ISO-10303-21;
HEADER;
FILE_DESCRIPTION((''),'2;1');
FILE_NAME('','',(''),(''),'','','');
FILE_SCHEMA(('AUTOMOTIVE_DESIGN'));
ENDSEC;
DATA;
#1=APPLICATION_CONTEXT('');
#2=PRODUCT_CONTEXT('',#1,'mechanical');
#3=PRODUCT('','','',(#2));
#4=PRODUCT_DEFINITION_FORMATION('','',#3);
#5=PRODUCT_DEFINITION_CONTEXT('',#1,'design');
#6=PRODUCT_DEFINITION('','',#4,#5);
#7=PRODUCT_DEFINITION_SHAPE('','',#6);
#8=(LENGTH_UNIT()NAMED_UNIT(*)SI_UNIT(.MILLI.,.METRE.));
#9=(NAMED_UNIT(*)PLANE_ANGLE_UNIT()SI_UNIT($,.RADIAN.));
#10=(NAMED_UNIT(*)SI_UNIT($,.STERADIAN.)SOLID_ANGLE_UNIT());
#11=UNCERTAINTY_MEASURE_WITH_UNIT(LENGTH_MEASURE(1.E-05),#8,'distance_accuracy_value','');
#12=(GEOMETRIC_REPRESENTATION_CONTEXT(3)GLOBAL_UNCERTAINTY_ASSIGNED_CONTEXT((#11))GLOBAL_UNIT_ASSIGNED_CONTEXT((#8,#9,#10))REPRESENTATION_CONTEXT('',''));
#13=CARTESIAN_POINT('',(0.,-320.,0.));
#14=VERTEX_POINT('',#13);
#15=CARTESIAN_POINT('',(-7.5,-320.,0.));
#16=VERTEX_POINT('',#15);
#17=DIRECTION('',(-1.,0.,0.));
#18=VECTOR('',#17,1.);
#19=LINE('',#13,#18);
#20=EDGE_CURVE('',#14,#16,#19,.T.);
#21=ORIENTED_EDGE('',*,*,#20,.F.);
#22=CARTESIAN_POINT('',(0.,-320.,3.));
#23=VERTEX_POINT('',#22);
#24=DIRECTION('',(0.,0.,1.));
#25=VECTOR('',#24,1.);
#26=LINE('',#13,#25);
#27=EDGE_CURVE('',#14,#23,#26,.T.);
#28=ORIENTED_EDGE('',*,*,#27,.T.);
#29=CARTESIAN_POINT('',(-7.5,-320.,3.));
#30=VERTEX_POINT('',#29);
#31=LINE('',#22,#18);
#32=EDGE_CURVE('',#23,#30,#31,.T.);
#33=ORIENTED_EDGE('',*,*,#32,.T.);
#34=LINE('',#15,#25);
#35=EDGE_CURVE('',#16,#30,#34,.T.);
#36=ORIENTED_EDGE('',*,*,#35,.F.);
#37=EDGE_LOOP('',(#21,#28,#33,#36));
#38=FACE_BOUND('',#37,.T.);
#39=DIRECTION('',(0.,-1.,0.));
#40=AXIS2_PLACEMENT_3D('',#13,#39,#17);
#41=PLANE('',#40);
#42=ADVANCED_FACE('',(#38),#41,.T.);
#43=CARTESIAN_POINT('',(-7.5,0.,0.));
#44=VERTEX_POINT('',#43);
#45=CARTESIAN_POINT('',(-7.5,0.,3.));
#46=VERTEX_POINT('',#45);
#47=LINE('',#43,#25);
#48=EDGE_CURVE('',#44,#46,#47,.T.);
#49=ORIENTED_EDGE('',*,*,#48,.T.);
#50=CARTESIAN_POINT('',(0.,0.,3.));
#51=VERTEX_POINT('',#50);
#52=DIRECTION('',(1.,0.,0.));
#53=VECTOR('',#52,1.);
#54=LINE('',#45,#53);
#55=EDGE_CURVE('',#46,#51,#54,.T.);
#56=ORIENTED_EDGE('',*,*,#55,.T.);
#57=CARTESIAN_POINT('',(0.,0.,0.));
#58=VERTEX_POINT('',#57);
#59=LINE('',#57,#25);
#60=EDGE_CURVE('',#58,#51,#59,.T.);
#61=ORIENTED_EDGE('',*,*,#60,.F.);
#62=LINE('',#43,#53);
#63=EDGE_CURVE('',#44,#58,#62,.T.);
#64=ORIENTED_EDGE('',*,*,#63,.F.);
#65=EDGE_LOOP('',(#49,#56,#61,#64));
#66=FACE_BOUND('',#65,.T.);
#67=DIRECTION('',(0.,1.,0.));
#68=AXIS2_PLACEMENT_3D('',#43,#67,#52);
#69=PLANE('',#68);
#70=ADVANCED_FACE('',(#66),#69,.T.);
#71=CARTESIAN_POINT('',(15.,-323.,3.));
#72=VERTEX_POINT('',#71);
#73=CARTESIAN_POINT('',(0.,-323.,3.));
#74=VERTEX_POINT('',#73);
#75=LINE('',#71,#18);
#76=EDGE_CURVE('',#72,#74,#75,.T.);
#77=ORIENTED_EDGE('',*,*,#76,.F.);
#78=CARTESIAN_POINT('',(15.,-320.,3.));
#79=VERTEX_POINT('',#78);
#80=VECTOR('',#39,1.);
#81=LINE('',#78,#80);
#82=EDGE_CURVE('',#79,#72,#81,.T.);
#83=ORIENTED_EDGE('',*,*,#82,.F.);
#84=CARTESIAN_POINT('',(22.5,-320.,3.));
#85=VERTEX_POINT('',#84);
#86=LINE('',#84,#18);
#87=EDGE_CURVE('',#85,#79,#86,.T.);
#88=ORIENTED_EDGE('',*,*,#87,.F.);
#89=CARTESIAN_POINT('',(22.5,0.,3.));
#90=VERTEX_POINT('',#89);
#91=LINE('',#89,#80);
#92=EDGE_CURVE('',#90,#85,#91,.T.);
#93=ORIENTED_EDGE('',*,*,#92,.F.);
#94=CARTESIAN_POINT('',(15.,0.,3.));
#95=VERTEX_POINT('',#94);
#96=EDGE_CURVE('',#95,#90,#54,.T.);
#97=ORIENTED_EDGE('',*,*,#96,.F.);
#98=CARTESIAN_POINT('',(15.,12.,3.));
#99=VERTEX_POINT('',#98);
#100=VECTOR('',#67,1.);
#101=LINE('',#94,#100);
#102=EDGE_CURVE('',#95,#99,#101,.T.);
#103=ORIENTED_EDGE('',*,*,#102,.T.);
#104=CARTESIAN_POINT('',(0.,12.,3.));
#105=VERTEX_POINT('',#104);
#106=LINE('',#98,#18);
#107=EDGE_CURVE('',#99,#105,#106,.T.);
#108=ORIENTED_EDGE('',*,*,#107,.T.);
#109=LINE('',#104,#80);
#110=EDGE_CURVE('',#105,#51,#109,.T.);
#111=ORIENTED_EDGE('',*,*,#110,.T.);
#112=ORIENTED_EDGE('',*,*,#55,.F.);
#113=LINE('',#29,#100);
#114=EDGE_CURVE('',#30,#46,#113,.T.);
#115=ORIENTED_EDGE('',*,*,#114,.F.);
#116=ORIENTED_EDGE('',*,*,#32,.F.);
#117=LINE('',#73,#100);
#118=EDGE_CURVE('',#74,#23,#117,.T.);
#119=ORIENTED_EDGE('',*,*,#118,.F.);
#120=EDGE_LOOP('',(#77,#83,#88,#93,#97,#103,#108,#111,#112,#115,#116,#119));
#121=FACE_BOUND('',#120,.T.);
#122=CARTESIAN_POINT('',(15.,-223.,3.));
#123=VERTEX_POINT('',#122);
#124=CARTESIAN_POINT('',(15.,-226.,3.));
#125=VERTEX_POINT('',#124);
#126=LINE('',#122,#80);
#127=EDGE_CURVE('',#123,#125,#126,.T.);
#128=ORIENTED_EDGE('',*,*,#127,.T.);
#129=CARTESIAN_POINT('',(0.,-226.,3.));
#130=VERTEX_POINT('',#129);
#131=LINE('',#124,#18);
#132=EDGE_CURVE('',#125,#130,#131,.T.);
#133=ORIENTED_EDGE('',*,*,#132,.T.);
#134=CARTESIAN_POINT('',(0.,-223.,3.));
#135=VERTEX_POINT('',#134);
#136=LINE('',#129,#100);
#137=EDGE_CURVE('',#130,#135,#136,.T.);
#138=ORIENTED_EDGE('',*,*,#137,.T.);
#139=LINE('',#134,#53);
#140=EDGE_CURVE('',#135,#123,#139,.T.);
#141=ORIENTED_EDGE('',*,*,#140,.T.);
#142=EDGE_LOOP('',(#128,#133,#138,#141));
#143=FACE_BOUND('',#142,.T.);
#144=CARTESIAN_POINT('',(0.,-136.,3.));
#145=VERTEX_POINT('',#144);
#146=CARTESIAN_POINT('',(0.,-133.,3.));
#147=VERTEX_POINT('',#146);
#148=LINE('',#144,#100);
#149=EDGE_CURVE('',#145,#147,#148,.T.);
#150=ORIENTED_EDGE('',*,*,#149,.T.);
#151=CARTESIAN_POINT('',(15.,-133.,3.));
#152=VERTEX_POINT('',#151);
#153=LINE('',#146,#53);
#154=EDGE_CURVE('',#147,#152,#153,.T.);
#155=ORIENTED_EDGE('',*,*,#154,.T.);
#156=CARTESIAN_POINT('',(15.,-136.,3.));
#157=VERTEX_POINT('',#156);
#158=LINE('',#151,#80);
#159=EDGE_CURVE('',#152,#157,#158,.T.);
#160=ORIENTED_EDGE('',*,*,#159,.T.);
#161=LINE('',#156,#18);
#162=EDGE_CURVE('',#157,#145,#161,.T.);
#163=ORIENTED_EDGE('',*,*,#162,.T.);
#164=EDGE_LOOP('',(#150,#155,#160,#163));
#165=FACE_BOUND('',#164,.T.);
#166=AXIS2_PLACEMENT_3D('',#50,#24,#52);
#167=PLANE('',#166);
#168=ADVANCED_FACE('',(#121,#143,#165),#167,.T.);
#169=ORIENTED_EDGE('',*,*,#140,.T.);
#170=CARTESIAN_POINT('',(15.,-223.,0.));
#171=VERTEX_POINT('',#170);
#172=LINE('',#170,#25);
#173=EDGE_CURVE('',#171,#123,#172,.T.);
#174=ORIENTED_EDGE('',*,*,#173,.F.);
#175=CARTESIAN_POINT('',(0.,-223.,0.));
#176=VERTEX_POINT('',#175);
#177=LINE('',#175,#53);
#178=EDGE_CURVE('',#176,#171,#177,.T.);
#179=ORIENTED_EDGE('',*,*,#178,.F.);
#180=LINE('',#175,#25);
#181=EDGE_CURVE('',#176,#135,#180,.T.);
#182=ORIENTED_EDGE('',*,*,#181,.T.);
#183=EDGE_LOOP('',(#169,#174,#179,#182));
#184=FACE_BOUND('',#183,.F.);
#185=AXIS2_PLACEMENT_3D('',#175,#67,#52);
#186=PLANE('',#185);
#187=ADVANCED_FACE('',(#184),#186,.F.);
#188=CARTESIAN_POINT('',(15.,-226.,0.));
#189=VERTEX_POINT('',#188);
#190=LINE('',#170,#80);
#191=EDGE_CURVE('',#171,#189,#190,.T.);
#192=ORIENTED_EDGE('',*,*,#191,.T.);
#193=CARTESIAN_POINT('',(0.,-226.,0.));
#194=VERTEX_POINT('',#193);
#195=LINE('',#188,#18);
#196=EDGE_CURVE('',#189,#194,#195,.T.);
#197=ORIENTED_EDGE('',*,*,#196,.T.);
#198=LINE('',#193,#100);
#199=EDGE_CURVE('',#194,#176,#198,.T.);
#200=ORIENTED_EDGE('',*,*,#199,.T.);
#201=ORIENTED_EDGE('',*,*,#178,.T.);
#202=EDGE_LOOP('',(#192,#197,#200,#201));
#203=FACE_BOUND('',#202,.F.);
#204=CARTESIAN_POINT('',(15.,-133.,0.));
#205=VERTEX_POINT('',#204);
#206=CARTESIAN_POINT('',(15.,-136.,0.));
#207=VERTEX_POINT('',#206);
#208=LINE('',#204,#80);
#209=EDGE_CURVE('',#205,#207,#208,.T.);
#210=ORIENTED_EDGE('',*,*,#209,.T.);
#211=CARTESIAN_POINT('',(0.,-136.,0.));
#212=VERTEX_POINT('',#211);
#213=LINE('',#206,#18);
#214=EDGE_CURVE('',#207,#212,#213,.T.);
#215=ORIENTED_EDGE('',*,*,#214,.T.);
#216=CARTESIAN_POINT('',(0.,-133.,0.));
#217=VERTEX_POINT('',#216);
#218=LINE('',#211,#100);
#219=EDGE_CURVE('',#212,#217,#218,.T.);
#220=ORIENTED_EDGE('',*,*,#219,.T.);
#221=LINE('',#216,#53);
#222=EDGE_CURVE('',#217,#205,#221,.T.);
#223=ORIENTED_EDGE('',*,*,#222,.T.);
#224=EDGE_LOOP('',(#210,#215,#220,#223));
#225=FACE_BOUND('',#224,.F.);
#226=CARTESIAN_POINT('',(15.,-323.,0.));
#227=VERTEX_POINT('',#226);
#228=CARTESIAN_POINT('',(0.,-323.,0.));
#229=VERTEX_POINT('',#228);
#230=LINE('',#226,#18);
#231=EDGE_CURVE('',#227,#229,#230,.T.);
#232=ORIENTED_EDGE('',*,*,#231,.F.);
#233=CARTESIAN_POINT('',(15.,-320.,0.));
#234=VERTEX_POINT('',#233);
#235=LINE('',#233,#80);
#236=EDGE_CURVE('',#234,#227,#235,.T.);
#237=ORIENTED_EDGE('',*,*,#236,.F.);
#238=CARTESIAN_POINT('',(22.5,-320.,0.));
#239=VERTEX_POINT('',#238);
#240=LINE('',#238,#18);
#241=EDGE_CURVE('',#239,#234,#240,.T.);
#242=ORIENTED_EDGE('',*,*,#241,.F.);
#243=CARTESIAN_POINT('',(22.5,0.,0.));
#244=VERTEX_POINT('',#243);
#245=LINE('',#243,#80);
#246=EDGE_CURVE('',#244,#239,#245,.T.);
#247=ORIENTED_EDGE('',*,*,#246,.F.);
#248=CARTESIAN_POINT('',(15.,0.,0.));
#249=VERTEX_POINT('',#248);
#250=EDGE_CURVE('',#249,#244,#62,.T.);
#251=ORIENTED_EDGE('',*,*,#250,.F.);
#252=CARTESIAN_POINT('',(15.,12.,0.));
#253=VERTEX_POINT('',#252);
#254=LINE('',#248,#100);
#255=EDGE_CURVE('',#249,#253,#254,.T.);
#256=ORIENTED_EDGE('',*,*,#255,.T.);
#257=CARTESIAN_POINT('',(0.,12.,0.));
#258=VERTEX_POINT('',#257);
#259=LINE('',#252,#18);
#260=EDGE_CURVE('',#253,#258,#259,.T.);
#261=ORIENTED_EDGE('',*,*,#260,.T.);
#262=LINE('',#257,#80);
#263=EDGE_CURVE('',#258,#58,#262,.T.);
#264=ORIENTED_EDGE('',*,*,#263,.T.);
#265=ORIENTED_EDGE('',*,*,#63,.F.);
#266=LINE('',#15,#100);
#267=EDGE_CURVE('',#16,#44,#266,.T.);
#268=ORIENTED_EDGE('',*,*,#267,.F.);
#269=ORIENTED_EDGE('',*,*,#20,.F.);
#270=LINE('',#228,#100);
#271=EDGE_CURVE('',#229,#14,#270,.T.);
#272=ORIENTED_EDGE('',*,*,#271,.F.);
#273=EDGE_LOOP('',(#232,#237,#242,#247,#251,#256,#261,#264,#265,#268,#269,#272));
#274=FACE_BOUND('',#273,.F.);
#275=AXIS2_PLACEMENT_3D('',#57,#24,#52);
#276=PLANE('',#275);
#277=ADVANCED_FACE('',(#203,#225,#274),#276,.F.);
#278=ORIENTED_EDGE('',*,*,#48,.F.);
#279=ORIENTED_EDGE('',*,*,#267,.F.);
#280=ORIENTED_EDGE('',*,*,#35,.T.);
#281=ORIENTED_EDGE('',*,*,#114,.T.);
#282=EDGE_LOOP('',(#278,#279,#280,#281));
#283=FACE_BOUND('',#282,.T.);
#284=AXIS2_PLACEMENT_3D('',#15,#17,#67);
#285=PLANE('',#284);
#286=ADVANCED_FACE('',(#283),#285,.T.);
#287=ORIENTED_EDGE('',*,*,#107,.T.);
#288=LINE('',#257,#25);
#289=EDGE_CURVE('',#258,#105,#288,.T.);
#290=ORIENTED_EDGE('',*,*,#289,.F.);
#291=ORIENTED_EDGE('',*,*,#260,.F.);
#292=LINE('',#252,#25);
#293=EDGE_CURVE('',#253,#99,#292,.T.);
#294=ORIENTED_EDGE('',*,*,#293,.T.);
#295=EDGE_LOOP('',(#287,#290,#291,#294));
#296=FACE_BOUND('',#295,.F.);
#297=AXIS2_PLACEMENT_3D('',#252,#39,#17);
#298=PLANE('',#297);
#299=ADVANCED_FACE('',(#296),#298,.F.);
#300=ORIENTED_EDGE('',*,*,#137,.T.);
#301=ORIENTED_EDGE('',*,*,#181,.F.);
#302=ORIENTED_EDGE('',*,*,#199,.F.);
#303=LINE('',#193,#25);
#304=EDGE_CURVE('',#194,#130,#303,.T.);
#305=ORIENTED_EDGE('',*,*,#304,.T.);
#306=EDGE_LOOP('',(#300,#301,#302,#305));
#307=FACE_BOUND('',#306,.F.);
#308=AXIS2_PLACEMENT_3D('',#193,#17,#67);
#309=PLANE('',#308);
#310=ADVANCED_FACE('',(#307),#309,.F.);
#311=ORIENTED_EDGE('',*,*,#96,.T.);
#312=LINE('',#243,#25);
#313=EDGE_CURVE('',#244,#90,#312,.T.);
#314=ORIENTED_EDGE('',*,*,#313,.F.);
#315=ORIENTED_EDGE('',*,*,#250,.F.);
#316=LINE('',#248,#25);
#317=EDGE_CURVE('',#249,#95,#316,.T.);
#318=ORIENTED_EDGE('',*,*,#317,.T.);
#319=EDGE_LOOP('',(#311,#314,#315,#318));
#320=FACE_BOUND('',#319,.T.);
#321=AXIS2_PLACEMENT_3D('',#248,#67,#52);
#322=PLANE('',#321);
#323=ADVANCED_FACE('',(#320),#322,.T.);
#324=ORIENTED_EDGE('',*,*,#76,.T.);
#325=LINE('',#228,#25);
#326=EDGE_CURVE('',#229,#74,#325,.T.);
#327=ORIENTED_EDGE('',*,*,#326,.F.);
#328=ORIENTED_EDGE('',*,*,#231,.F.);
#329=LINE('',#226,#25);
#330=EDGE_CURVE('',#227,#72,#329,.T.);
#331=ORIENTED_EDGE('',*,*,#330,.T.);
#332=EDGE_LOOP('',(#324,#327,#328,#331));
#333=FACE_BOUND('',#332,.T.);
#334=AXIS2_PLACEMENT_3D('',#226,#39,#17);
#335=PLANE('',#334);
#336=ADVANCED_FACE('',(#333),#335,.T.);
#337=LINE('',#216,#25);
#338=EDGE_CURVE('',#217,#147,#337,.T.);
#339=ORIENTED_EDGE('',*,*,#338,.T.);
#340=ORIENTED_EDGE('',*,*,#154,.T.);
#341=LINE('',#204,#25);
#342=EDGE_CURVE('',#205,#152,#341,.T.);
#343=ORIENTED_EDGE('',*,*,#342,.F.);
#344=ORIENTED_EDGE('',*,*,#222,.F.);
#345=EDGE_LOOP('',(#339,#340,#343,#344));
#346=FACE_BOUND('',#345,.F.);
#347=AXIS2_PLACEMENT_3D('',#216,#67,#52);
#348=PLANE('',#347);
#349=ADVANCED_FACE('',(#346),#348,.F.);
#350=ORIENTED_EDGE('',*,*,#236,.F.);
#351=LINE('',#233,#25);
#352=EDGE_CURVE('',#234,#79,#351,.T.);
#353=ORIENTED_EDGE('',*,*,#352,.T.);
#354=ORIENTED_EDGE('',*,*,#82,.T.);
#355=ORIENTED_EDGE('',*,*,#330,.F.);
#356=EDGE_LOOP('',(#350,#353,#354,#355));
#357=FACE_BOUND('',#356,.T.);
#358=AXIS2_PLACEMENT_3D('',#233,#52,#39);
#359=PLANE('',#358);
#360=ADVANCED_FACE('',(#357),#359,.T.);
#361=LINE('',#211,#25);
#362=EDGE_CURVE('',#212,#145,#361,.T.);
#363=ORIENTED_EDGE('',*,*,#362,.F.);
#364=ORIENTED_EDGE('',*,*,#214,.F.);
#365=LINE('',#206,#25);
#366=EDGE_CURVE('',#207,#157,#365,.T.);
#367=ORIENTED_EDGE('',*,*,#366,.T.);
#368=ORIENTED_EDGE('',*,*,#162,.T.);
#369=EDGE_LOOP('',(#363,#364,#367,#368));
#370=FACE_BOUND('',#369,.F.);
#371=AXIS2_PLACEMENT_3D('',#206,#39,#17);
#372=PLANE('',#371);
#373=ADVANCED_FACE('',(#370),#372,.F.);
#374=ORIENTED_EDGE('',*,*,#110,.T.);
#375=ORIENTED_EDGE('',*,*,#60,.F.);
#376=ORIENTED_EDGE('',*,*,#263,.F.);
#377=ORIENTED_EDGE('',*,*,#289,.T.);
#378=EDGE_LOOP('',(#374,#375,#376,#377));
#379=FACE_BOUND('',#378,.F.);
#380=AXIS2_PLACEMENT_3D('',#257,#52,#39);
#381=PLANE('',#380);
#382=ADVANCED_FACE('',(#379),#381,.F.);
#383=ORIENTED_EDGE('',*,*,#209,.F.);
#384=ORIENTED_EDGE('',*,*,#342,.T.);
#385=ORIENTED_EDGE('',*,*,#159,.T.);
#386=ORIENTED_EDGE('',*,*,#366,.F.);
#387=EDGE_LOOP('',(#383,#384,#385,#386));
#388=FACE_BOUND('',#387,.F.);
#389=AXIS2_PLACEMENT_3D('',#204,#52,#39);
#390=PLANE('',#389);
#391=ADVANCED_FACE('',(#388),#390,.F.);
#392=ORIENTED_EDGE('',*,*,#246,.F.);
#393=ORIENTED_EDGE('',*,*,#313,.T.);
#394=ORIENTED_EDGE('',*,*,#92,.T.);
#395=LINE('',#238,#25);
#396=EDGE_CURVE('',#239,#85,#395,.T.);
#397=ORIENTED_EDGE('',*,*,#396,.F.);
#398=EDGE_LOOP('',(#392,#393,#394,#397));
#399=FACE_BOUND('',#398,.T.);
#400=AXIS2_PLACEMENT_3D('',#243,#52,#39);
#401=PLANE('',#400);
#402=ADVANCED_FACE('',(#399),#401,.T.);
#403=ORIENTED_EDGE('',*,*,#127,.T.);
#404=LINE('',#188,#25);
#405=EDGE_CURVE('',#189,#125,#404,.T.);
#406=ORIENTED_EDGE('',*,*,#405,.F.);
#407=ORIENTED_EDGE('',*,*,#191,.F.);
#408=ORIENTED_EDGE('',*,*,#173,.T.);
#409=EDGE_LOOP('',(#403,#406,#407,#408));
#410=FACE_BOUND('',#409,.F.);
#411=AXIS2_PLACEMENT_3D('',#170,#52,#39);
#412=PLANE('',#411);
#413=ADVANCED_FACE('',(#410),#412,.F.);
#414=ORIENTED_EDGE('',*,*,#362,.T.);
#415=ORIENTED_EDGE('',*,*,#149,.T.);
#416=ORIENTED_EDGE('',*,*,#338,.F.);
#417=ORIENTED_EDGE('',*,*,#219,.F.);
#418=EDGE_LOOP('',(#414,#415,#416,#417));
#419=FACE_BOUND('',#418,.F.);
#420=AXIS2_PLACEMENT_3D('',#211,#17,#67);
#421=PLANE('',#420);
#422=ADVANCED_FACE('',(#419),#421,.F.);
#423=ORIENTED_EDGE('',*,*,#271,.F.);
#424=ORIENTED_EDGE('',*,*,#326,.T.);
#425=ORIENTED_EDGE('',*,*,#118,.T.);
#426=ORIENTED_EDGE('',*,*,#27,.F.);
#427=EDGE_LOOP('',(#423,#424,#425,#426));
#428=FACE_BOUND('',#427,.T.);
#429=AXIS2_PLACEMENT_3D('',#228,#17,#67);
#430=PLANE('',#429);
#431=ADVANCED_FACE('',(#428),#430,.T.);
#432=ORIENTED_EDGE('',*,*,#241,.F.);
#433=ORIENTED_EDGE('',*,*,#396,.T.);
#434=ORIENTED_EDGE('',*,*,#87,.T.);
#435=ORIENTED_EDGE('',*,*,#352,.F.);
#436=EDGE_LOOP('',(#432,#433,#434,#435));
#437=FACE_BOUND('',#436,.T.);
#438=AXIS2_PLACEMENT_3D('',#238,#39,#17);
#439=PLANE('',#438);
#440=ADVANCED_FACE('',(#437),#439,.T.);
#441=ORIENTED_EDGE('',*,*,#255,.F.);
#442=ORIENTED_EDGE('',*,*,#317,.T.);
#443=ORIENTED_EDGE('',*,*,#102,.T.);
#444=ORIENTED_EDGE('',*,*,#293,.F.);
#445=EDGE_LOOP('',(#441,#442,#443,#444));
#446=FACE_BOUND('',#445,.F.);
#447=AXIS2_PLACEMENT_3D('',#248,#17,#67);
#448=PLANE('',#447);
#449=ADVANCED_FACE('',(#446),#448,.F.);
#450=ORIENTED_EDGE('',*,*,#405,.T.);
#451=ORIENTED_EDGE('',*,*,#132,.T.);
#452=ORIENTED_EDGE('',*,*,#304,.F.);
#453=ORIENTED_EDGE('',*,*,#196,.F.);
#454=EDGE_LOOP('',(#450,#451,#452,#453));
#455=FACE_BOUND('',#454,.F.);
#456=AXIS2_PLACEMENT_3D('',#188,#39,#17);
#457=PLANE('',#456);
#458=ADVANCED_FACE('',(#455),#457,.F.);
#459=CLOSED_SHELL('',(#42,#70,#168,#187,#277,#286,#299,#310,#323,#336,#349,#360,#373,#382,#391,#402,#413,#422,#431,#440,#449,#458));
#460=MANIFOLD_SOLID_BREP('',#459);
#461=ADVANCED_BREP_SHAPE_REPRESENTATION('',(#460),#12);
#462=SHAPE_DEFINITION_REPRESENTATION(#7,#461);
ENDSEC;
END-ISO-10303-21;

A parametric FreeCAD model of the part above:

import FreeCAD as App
import Part
import Sketcher
from FreeCAD import Vector

doc = App.newDocument("Part")
body = doc.addObject("PartDesign::Body", "Body")

sketch1 = body.newObject("Sketcher::SketchObject", "Sketch")
sketch1.AttachmentSupport = (doc.getObject("XY_Plane"), [""])
sketch1.MapMode = "FlatFace"
sketch1.addGeometry(Part.LineSegment(Vector(0, 12, 0), Vector(0, 0, 0)), False)
sketch1.addGeometry(Part.LineSegment(Vector(0, 0, 0), Vector(-7.5, 0, 0)), False)
sketch1.addGeometry(Part.LineSegment(Vector(-7.5, 0, 0), Vector(-7.5, -320, 0)), False)
sketch1.addGeometry(Part.LineSegment(Vector(-7.5, -320, 0), Vector(0, -320, 0)), False)
sketch1.addGeometry(Part.LineSegment(Vector(0, -320, 0), Vector(0, -323, 0)), False)
sketch1.addGeometry(Part.LineSegment(Vector(0, -323, 0), Vector(15, -323, 0)), False)
sketch1.addGeometry(Part.LineSegment(Vector(15, -323, 0), Vector(15, -320, 0)), False)
sketch1.addGeometry(Part.LineSegment(Vector(15, -320, 0), Vector(22.5, -320, 0)), False)
sketch1.addGeometry(Part.LineSegment(Vector(22.5, -320, 0), Vector(22.5, 0, 0)), False)
sketch1.addGeometry(Part.LineSegment(Vector(22.5, 0, 0), Vector(15, 0, 0)), False)
sketch1.addGeometry(Part.LineSegment(Vector(15, 0, 0), Vector(15, 12, 0)), False)
sketch1.addGeometry(Part.LineSegment(Vector(15, 12, 0), Vector(0, 12, 0)), False)
sketch1.addGeometry(Part.LineSegment(Vector(0, -133, 0), Vector(15, -133, 0)), False)
sketch1.addGeometry(Part.LineSegment(Vector(15, -133, 0), Vector(15, -136, 0)), False)
sketch1.addGeometry(Part.LineSegment(Vector(15, -136, 0), Vector(0, -136, 0)), False)
sketch1.addGeometry(Part.LineSegment(Vector(0, -136, 0), Vector(0, -133, 0)), False)
sketch1.addGeometry(Part.LineSegment(Vector(0, -226, 0), Vector(0, -223, 0)), False)
sketch1.addGeometry(Part.LineSegment(Vector(0, -223, 0), Vector(15, -223, 0)), False)
sketch1.addGeometry(Part.LineSegment(Vector(15, -223, 0), Vector(15, -226, 0)), False)
sketch1.addGeometry(Part.LineSegment(Vector(15, -226, 0), Vector(0, -226, 0)), False)
sketch1.addConstraint(Sketcher.Constraint("Coincident", 0, 2, 1, 1))
sketch1.addConstraint(Sketcher.Constraint("Coincident", 1, 2, 2, 1))
sketch1.addConstraint(Sketcher.Constraint("Coincident", 2, 2, 3, 1))
sketch1.addConstraint(Sketcher.Constraint("Coincident", 3, 2, 4, 1))
sketch1.addConstraint(Sketcher.Constraint("Coincident", 4, 2, 5, 1))
sketch1.addConstraint(Sketcher.Constraint("Coincident", 5, 2, 6, 1))
sketch1.addConstraint(Sketcher.Constraint("Coincident", 6, 2, 7, 1))
sketch1.addConstraint(Sketcher.Constraint("Coincident", 7, 2, 8, 1))
sketch1.addConstraint(Sketcher.Constraint("Coincident", 8, 2, 9, 1))
sketch1.addConstraint(Sketcher.Constraint("Coincident", 9, 2, 10, 1))
sketch1.addConstraint(Sketcher.Constraint("Coincident", 10, 2, 11, 1))
sketch1.addConstraint(Sketcher.Constraint("Coincident", 11, 2, 0, 1))
sketch1.addConstraint(Sketcher.Constraint("Coincident", 12, 2, 13, 1))
sketch1.addConstraint(Sketcher.Constraint("Coincident", 13, 2, 14, 1))
sketch1.addConstraint(Sketcher.Constraint("Coincident", 14, 2, 15, 1))
sketch1.addConstraint(Sketcher.Constraint("Coincident", 15, 2, 12, 1))
sketch1.addConstraint(Sketcher.Constraint("Coincident", 16, 2, 17, 1))
sketch1.addConstraint(Sketcher.Constraint("Coincident", 17, 2, 18, 1))
sketch1.addConstraint(Sketcher.Constraint("Coincident", 18, 2, 19, 1))
sketch1.addConstraint(Sketcher.Constraint("Coincident", 19, 2, 16, 1))
sketch1.addConstraint(Sketcher.Constraint("Vertical", 0))
sketch1.addConstraint(Sketcher.Constraint("Horizontal", 1))
sketch1.addConstraint(Sketcher.Constraint("Vertical", 2))
sketch1.addConstraint(Sketcher.Constraint("Horizontal", 3))
sketch1.addConstraint(Sketcher.Constraint("Vertical", 4))
sketch1.addConstraint(Sketcher.Constraint("Horizontal", 5))
sketch1.addConstraint(Sketcher.Constraint("Vertical", 6))
sketch1.addConstraint(Sketcher.Constraint("Horizontal", 7))
sketch1.addConstraint(Sketcher.Constraint("Vertical", 8))
sketch1.addConstraint(Sketcher.Constraint("Horizontal", 9))
sketch1.addConstraint(Sketcher.Constraint("Vertical", 10))
sketch1.addConstraint(Sketcher.Constraint("Horizontal", 11))
sketch1.addConstraint(Sketcher.Constraint("Horizontal", 12))
sketch1.addConstraint(Sketcher.Constraint("Vertical", 13))
sketch1.addConstraint(Sketcher.Constraint("Horizontal", 14))
sketch1.addConstraint(Sketcher.Constraint("Vertical", 15))
sketch1.addConstraint(Sketcher.Constraint("Vertical", 16))
sketch1.addConstraint(Sketcher.Constraint("Horizontal", 17))
sketch1.addConstraint(Sketcher.Constraint("Vertical", 18))
sketch1.addConstraint(Sketcher.Constraint("Horizontal", 19))
sketch1.addConstraint(Sketcher.Constraint("Coincident", 0, 2, -1, 1))
sketch1.addConstraint(Sketcher.Constraint("PointOnObject", 3, 2, -2))
sketch1.addConstraint(Sketcher.Constraint("PointOnObject", 8, 2, -1))
sketch1.addConstraint(Sketcher.Constraint("PointOnObject", 14, 2, -2))
sketch1.addConstraint(Sketcher.Constraint("PointOnObject", 16, 2, -2))
sketch1.addConstraint(Sketcher.Constraint("Horizontal", 3, 2, 6, 2))
sketch1.addConstraint(Sketcher.Constraint("Vertical", 6, 2, 9, 2))
sketch1.addConstraint(Sketcher.Constraint("Vertical", 10, 2, 12, 2))
sketch1.addConstraint(Sketcher.Constraint("Vertical", 13, 2, 17, 2))
sketch1.addConstraint(Sketcher.Constraint("Equal", 3, 7))
sketch1.addConstraint(Sketcher.Constraint("Equal", 6, 13))
sketch1.addConstraint(Sketcher.Constraint("Equal", 15, 16))
sketch1.addConstraint(Sketcher.Constraint("DistanceX", 5, 1, 5, 2, 15.0))
sketch1.addConstraint(Sketcher.Constraint("DistanceY", 0, 2, 0, 1, 12.0))
sketch1.addConstraint(Sketcher.Constraint("DistanceY", 2, 2, 2, 1, 320.0))
sketch1.addConstraint(Sketcher.Constraint("DistanceY", 4, 2, 4, 1, 3.0))
sketch1.addConstraint(Sketcher.Constraint("DistanceX", 1, 2, 1, 1, 7.5))
sketch1.addConstraint(Sketcher.Constraint("DistanceY", 12, 2, 10, 2, 145.0))
sketch1.addConstraint(Sketcher.Constraint("DistanceY", 16, 2, 15, 2, 90.0))
pad1 = body.newObject("PartDesign::Pad", "Pad")
pad1.Profile = sketch1
pad1.Length = 3

doc.recompute()
